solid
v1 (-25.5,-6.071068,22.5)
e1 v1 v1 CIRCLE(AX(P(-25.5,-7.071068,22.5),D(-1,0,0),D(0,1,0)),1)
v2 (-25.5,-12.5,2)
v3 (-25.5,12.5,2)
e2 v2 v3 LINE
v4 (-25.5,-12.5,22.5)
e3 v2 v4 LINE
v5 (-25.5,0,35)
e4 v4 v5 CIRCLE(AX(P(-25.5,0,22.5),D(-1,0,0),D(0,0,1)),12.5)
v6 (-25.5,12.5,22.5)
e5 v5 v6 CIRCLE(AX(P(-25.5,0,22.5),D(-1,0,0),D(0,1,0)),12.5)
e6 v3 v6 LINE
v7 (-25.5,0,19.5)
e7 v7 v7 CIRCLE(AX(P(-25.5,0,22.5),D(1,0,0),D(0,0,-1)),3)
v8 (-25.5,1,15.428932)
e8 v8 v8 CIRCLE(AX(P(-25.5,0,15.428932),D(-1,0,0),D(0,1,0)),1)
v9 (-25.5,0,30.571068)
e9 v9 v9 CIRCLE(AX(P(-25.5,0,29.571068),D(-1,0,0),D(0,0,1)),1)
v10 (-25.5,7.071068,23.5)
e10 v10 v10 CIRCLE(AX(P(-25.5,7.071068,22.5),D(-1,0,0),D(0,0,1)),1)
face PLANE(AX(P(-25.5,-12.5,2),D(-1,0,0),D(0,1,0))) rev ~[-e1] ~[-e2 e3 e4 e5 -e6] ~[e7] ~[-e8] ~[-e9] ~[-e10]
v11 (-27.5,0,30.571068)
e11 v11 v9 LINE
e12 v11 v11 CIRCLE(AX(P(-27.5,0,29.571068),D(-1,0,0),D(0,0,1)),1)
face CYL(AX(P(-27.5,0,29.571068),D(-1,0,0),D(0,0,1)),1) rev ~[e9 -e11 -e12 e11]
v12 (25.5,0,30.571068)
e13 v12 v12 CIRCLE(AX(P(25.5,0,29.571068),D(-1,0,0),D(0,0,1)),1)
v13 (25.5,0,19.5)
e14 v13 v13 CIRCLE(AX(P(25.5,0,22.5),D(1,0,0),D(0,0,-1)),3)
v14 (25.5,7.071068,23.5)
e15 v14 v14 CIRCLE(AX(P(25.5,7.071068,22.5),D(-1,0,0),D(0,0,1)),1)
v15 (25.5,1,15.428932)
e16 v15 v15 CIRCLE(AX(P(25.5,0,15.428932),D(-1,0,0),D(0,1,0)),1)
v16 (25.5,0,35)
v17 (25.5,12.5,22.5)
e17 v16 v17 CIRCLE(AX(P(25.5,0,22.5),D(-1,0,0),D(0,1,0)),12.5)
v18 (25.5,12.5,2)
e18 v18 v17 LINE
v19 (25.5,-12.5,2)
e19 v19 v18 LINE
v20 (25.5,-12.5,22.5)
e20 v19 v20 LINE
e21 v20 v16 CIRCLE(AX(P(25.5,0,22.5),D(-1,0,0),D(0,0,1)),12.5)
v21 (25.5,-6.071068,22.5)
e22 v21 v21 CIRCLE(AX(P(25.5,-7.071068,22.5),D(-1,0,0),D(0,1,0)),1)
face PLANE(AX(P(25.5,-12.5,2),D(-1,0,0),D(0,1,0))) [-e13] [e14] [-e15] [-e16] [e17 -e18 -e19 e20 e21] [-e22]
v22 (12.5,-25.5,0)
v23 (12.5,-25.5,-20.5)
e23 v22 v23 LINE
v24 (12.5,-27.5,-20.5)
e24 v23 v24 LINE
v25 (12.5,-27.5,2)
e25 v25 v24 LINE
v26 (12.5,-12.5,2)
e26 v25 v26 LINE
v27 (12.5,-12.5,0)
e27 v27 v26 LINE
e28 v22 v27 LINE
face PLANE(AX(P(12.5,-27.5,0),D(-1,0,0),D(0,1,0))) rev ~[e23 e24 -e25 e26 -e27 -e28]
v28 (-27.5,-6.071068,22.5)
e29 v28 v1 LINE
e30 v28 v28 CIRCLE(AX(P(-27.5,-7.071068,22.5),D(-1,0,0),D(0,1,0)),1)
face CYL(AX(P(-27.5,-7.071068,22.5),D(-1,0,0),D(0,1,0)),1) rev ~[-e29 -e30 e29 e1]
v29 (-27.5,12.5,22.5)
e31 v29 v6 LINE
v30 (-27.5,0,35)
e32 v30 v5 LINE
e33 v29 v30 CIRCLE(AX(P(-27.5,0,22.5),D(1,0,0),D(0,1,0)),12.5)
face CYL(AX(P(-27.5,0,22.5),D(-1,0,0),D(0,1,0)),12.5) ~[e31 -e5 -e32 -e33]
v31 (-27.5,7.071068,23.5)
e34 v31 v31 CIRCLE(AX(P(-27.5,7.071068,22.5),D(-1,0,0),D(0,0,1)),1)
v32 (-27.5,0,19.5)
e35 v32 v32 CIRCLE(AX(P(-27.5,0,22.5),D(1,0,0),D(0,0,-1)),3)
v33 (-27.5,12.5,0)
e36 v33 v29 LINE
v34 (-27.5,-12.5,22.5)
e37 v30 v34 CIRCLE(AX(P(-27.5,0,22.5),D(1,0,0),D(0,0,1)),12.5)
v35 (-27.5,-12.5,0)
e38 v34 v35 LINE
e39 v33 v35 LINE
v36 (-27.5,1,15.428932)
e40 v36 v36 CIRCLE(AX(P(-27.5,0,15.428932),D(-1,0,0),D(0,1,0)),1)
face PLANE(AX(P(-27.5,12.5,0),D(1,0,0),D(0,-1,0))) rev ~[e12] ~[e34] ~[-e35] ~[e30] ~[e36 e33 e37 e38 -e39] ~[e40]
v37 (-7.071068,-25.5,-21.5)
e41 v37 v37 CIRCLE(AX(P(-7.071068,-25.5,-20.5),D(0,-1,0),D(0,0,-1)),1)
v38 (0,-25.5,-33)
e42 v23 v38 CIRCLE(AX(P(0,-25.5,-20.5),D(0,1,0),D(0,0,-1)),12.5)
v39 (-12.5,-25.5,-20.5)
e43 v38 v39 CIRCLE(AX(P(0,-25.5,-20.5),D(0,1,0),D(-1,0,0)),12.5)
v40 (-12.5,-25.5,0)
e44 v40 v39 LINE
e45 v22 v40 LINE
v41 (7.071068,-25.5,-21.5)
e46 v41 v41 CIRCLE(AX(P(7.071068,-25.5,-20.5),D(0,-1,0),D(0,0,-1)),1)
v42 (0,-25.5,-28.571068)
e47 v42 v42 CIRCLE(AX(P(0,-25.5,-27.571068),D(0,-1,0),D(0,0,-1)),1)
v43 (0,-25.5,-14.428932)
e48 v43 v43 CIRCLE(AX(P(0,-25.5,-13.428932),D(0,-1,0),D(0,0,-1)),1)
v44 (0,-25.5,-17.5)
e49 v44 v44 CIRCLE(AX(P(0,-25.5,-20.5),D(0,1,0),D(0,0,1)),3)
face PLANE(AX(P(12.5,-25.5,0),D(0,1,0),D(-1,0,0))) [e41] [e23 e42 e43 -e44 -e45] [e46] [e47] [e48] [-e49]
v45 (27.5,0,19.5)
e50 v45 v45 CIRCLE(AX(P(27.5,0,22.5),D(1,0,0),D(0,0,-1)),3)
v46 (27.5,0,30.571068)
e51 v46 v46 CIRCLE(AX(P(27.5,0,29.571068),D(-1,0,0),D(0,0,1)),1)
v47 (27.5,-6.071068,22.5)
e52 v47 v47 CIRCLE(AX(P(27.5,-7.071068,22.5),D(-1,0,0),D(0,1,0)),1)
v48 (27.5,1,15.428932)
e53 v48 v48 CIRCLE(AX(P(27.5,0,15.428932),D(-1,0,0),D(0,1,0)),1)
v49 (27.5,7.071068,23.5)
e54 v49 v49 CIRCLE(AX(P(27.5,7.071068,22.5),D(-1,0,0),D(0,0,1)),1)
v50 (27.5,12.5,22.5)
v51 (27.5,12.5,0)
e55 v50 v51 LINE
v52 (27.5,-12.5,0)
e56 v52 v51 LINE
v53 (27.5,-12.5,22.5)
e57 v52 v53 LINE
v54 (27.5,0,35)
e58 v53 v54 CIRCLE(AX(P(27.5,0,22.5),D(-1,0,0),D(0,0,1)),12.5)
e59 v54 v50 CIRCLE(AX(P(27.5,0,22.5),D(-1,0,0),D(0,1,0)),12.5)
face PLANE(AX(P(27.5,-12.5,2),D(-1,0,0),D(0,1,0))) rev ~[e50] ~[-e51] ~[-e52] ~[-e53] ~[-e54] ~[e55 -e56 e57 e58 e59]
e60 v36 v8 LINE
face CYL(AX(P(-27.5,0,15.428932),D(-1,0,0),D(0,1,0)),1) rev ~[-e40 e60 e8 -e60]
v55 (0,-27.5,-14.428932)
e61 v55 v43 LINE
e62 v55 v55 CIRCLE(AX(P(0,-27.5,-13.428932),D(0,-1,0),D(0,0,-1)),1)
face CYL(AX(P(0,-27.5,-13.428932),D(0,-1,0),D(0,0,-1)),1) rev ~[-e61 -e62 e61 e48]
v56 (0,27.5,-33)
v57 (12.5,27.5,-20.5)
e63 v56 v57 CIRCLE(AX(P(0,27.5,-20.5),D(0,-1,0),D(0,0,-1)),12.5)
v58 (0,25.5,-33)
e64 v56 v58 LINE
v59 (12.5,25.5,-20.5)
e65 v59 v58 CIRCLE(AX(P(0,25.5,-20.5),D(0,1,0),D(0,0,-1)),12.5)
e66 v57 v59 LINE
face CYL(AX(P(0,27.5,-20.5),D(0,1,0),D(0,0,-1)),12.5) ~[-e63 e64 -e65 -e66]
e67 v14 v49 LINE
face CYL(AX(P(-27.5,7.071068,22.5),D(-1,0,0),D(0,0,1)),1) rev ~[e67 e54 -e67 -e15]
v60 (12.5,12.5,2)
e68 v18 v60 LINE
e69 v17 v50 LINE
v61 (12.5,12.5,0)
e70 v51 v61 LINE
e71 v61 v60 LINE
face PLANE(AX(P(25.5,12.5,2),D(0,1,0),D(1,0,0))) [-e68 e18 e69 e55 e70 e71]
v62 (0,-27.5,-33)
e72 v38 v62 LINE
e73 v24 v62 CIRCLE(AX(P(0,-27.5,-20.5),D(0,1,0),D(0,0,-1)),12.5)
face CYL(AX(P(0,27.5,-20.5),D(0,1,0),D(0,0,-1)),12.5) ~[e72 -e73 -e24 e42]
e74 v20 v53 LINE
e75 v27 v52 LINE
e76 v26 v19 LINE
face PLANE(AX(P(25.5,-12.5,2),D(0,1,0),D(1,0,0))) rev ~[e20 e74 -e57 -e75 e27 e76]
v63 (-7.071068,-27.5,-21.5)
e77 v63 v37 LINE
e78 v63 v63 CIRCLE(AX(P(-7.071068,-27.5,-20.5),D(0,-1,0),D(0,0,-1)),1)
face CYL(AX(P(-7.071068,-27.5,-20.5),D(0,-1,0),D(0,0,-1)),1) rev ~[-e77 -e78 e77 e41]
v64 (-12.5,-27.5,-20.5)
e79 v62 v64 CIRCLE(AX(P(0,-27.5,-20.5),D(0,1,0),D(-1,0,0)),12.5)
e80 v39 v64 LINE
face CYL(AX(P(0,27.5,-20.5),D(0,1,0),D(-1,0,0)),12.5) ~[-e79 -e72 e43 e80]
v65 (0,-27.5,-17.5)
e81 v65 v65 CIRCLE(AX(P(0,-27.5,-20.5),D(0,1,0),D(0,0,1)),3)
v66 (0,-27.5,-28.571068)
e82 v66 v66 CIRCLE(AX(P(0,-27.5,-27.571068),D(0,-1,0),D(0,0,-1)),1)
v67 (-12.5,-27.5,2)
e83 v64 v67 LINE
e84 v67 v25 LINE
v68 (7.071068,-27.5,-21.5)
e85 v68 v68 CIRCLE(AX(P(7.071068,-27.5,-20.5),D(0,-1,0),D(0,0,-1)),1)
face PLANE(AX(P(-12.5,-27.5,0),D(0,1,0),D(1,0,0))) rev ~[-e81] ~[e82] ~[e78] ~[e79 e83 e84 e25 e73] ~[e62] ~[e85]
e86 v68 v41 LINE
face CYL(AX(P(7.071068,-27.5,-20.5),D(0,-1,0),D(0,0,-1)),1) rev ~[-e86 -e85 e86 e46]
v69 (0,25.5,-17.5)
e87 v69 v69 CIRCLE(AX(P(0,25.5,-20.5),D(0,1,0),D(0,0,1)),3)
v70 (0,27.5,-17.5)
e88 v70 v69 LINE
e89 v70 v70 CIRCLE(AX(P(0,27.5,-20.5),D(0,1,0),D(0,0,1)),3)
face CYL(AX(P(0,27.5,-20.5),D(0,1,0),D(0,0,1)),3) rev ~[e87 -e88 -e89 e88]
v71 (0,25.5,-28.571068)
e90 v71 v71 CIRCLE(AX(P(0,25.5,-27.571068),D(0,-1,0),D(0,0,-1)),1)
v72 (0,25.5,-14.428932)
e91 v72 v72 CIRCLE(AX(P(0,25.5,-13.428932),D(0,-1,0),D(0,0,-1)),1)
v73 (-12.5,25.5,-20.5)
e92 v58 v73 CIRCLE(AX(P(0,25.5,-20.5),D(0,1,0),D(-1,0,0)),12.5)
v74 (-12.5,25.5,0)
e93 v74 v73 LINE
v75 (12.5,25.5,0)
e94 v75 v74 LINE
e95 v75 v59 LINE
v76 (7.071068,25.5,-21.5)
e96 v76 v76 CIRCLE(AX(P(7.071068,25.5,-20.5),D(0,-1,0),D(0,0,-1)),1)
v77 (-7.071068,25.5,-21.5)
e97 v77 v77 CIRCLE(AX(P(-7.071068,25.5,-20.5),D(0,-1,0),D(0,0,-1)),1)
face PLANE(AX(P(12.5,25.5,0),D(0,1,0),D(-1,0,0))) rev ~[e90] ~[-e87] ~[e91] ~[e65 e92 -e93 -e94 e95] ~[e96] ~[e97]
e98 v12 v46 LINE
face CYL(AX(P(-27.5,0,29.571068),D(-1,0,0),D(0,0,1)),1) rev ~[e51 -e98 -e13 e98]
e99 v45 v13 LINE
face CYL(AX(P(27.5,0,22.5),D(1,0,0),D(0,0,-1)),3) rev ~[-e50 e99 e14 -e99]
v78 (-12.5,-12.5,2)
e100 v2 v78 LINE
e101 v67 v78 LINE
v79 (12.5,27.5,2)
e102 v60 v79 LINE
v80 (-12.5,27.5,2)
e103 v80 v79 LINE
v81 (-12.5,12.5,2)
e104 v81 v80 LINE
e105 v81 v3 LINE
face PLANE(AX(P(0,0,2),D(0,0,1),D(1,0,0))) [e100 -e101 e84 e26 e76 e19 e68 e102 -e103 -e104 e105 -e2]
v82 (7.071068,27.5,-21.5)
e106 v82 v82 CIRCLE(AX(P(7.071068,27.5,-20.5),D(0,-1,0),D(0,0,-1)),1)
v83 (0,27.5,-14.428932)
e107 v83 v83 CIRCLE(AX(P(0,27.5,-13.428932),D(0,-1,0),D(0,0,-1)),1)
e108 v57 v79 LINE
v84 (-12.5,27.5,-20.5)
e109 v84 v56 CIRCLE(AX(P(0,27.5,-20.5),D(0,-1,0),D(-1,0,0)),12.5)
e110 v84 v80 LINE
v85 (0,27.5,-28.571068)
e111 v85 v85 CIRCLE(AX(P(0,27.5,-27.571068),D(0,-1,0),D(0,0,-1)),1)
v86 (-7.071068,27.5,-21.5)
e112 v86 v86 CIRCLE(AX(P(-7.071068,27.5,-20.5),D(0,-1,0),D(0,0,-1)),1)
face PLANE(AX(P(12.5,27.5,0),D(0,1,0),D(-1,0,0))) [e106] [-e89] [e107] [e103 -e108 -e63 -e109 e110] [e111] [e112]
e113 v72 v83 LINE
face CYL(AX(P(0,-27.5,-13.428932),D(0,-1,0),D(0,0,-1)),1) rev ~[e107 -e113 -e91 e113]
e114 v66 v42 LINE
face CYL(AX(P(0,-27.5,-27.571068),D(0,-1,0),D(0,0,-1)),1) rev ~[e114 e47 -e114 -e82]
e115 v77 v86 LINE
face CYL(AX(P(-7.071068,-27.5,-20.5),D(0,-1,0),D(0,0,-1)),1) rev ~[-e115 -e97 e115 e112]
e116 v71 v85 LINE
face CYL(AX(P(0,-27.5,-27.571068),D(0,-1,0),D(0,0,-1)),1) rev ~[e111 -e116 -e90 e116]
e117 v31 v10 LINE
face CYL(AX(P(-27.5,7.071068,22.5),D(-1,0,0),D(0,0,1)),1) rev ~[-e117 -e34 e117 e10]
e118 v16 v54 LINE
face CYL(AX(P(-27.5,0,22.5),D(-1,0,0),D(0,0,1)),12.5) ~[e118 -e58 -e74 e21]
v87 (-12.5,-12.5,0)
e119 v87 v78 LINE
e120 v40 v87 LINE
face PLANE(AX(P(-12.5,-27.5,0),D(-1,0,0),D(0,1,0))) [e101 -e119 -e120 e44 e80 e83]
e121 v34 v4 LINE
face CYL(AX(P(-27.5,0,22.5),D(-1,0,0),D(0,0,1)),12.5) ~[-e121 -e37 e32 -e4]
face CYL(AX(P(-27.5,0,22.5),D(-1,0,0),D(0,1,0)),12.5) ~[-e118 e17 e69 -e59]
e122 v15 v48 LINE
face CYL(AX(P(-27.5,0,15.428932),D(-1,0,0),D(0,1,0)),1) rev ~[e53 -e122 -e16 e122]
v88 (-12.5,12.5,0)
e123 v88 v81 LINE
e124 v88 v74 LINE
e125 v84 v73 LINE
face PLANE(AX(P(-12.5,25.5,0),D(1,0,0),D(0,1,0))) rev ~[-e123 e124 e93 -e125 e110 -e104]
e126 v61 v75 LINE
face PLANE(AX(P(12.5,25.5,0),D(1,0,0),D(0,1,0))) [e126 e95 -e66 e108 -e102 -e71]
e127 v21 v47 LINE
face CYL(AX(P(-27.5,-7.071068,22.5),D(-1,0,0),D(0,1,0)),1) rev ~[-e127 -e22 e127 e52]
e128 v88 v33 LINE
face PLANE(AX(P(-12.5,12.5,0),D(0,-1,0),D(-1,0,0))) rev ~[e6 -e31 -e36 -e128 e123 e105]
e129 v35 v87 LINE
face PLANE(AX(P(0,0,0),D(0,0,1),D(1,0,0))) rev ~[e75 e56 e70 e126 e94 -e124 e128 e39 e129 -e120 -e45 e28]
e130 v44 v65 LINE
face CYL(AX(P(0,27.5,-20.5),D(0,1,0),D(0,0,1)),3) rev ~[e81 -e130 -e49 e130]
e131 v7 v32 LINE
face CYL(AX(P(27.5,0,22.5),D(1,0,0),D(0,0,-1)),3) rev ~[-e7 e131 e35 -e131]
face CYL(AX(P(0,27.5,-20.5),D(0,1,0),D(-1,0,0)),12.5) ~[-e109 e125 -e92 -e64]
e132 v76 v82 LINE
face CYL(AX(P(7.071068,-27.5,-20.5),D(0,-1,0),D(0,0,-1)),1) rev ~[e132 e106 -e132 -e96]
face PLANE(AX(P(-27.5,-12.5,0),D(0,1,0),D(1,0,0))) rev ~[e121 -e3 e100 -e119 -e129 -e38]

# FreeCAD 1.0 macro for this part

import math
import FreeCAD as App
import Part
import Sketcher
Q = App.Units.Quantity

doc = App.newDocument("Part")
params = doc.addObject("Spreadsheet::Sheet", "Params")
for row, (alias, value) in enumerate([
    ("sketch1_width", "15 mm"),
    ("sketch1_width2", "25 mm"),
    ("pad1_length", "2 mm"),
    ("sketch2_width", "2 mm"),
    ("sketch2_height", "25 mm"),
    ("pad2_length", "33 mm"),
    ("sketch3_width", "25 mm"),
    ("sketch3_height", "2 mm"),
    ("pad3_length", "33 mm"),
    ("sketch4_diameter", "2 mm"),
    ("sketch4_radius", "12.5 mm"),
    ("sketch5_diameter", "2 mm"),
    ("sketch5_radius", "12.5 mm"),
    ("sketch6_diameter", "6 mm"),
    ("sketch7_diameter", "6 mm"),
    ("sketch8_diameter", "25 mm"),
    ("sketch8_diameter2", "6 mm"),
    ("pad4_length", "2 mm"),
    ("sketch9_diameter", "25 mm"),
    ("sketch9_diameter2", "6 mm"),
    ("pad5_length", "2 mm"),
    ("sketch10_diameter", "2 mm"),
    ("sketch11_diameter", "25 mm"),
    ("sketch11_diameter2", "6 mm"),
    ("pad6_length", "2 mm"),
    ("sketch12_diameter", "25 mm"),
    ("sketch12_diameter2", "6 mm"),
    ("pad7_length", "2 mm"),
    ("sketch13_diameter", "2 mm"),
], start=1):
    params.set(f"A{row}", alias)
    params.set(f"B{row}", "=" + value)
    params.setAlias(f"B{row}", alias)

body = doc.addObject("PartDesign::Body", "Body")

# Sketch on XY plane
sketch1 = doc.addObject("Sketcher::SketchObject", "Sketch")
body.addObject(sketch1)
sketch1.AttachmentSupport = (doc.XY_Plane, [""])
sketch1.MapMode = "FlatFace"
sketch1.addGeometry([
    Part.LineSegment(App.Vector(-28, 12, 0), App.Vector(-28, -12, 0)),  # 0
    Part.LineSegment(App.Vector(-28, -12, 0), App.Vector(-12, -12, 0)),  # 1
    Part.LineSegment(App.Vector(-12, -12, 0), App.Vector(-12, -28, 0)),  # 2
    Part.LineSegment(App.Vector(-12, -28, 0), App.Vector(12, -28, 0)),  # 3
    Part.LineSegment(App.Vector(12, -28, 0), App.Vector(12, -12, 0)),  # 4
    Part.LineSegment(App.Vector(12, -12, 0), App.Vector(28, -12, 0)),  # 5
    Part.LineSegment(App.Vector(28, -12, 0), App.Vector(28, 12, 0)),  # 6
    Part.LineSegment(App.Vector(28, 12, 0), App.Vector(12, 12, 0)),  # 7
    Part.LineSegment(App.Vector(12, 12, 0), App.Vector(12, 28, 0)),  # 8
    Part.LineSegment(App.Vector(12, 28, 0), App.Vector(-12, 28, 0)),  # 9
    Part.LineSegment(App.Vector(-12, 28, 0), App.Vector(-12, 12, 0)),  # 10
    Part.LineSegment(App.Vector(-12, 12, 0), App.Vector(-28, 12, 0)),  # 11
], False)
sketch1.addConstraint([
    Sketcher.Constraint("Coincident", 0, 2, 1, 1),
    Sketcher.Constraint("Coincident", 1, 2, 2, 1),
    Sketcher.Constraint("Coincident", 2, 2, 3, 1),
    Sketcher.Constraint("Coincident", 3, 2, 4, 1),
    Sketcher.Constraint("Coincident", 4, 2, 5, 1),
    Sketcher.Constraint("Coincident", 5, 2, 6, 1),
    Sketcher.Constraint("Coincident", 6, 2, 7, 1),
    Sketcher.Constraint("Coincident", 7, 2, 8, 1),
    Sketcher.Constraint("Coincident", 8, 2, 9, 1),
    Sketcher.Constraint("Coincident", 9, 2, 10, 1),
    Sketcher.Constraint("Coincident", 10, 2, 11, 1),
    Sketcher.Constraint("Coincident", 11, 2, 0, 1),
    Sketcher.Constraint("Vertical", 0),
    Sketcher.Constraint("Horizontal", 1),
    Sketcher.Constraint("Vertical", 2),
    Sketcher.Constraint("Horizontal", 3),
    Sketcher.Constraint("Vertical", 4),
    Sketcher.Constraint("Horizontal", 5),
    Sketcher.Constraint("Vertical", 6),
    Sketcher.Constraint("Horizontal", 7),
    Sketcher.Constraint("Vertical", 8),
    Sketcher.Constraint("Horizontal", 9),
    Sketcher.Constraint("Vertical", 10),
    Sketcher.Constraint("Horizontal", 11),
    Sketcher.Constraint("Symmetric", 0, 2, 6, 2, -1, 1),
    Sketcher.Constraint("Symmetric", 2, 2, 8, 2, -1, 1),
    Sketcher.Constraint("Symmetric", 4, 2, 10, 2, -1, 1),
    Sketcher.Constraint("Symmetric", 1, 2, 4, 2, -2),
    Sketcher.Constraint("Equal", 9, 0),
    Sketcher.Constraint("Equal", 11, 2),
    Sketcher.Constraint("DistanceX", 1, 1, 1, 2, Q("15 mm")),
    Sketcher.Constraint("DistanceX", 3, 1, 3, 2, Q("25 mm")),
])
sketch1.setExpression("Constraints[30]", "Params.sketch1_width")
sketch1.setExpression("Constraints[31]", "Params.sketch1_width2")
pad1 = doc.addObject("PartDesign::Pad", "Pad")
body.addObject(pad1)
pad1.Profile = sketch1
pad1.setExpression("Length", "Params.pad1_length")

# Sketch on XY plane
sketch2 = doc.addObject("Sketcher::SketchObject", "Sketch001")
body.addObject(sketch2)
sketch2.AttachmentSupport = (doc.XY_Plane, [""])
sketch2.MapMode = "FlatFace"
sketch2.AttachmentOffset = App.Placement(App.Vector(0, 0, 2), App.Rotation())
sketch2.addGeometry([
    Part.LineSegment(App.Vector(25.5, 12.5, 0), App.Vector(25.5, -12.5, 0)),  # 0
    Part.LineSegment(App.Vector(25.5, -12.5, 0), App.Vector(27.5, -12.5, 0)),  # 1
    Part.LineSegment(App.Vector(27.5, -12.5, 0), App.Vector(27.5, 12.5, 0)),  # 2
    Part.LineSegment(App.Vector(27.5, 12.5, 0), App.Vector(25.5, 12.5, 0)),  # 3
    Part.LineSegment(App.Vector(-27.5, 12.5, 0), App.Vector(-27.5, -12.5, 0)),  # 4
    Part.LineSegment(App.Vector(-27.5, -12.5, 0), App.Vector(-25.5, -12.5, 0)),  # 5
    Part.LineSegment(App.Vector(-25.5, -12.5, 0), App.Vector(-25.5, 12.5, 0)),  # 6
    Part.LineSegment(App.Vector(-25.5, 12.5, 0), App.Vector(-27.5, 12.5, 0)),  # 7
], False)
sketch2.addConstraint([
    Sketcher.Constraint("Coincident", 0, 2, 1, 1),
    Sketcher.Constraint("Coincident", 1, 2, 2, 1),
    Sketcher.Constraint("Coincident", 2, 2, 3, 1),
    Sketcher.Constraint("Coincident", 3, 2, 0, 1),
    Sketcher.Constraint("Coincident", 4, 2, 5, 1),
    Sketcher.Constraint("Coincident", 5, 2, 6, 1),
    Sketcher.Constraint("Coincident", 6, 2, 7, 1),
    Sketcher.Constraint("Coincident", 7, 2, 4, 1),
    Sketcher.Constraint("Vertical", 0),
    Sketcher.Constraint("Horizontal", 1),
    Sketcher.Constraint("Vertical", 2),
    Sketcher.Constraint("Horizontal", 3),
    Sketcher.Constraint("Vertical", 4),
    Sketcher.Constraint("Horizontal", 5),
    Sketcher.Constraint("Vertical", 6),
    Sketcher.Constraint("Horizontal", 7),
    Sketcher.Constraint("Symmetric", 2, 2, 4, 2, -1, 1),
    Sketcher.Constraint("Symmetric", 0, 2, 6, 2, -1, 1),
    Sketcher.Constraint("Horizontal", 1, 2, 4, 2),
    Sketcher.Constraint("DistanceX", 1, 1, 1, 2, Q("2 mm")),
    Sketcher.Constraint("DistanceY", 0, 2, 0, 1, Q("25 mm")),
    Sketcher.Constraint("DistanceX", 4, 2, 0, 2, Q("53 mm")),
])
sketch2.setExpression("Constraints[19]", "Params.sketch2_width")
sketch2.setExpression("Constraints[20]", "Params.sketch2_height")
pad2 = doc.addObject("PartDesign::Pad", "Pad001")
body.addObject(pad2)
pad2.Profile = sketch2
pad2.setExpression("Length", "Params.pad2_length")

# Sketch on XY plane
sketch3 = doc.addObject("Sketcher::SketchObject", "Sketch002")
body.addObject(sketch3)
sketch3.AttachmentSupport = (doc.XY_Plane, [""])
sketch3.MapMode = "FlatFace"
sketch3.addGeometry([
    Part.LineSegment(App.Vector(12.5, 27.5, 0), App.Vector(12.5, 25.5, 0)),  # 0
    Part.LineSegment(App.Vector(12.5, 25.5, 0), App.Vector(-12.5, 25.5, 0)),  # 1
    Part.LineSegment(App.Vector(-12.5, 25.5, 0), App.Vector(-12.5, 27.5, 0)),  # 2
    Part.LineSegment(App.Vector(-12.5, 27.5, 0), App.Vector(12.5, 27.5, 0)),  # 3
    Part.LineSegment(App.Vector(12.5, -25.5, 0), App.Vector(12.5, -27.5, 0)),  # 4
    Part.LineSegment(App.Vector(12.5, -27.5, 0), App.Vector(-12.5, -27.5, 0)),  # 5
    Part.LineSegment(App.Vector(-12.5, -27.5, 0), App.Vector(-12.5, -25.5, 0)),  # 6
    Part.LineSegment(App.Vector(-12.5, -25.5, 0), App.Vector(12.5, -25.5, 0)),  # 7
], False)
sketch3.addConstraint([
    Sketcher.Constraint("Coincident", 0, 2, 1, 1),
    Sketcher.Constraint("Coincident", 1, 2, 2, 1),
    Sketcher.Constraint("Coincident", 2, 2, 3, 1),
    Sketcher.Constraint("Coincident", 3, 2, 0, 1),
    Sketcher.Constraint("Coincident", 4, 2, 5, 1),
    Sketcher.Constraint("Coincident", 5, 2, 6, 1),
    Sketcher.Constraint("Coincident", 6, 2, 7, 1),
    Sketcher.Constraint("Coincident", 7, 2, 4, 1),
    Sketcher.Constraint("Vertical", 0),
    Sketcher.Constraint("Horizontal", 1),
    Sketcher.Constraint("Vertical", 2),
    Sketcher.Constraint("Horizontal", 3),
    Sketcher.Constraint("Vertical", 4),
    Sketcher.Constraint("Horizontal", 5),
    Sketcher.Constraint("Vertical", 6),
    Sketcher.Constraint("Horizontal", 7),
    Sketcher.Constraint("Symmetric", 2, 2, 4, 2, -1, 1),
    Sketcher.Constraint("Symmetric", 0, 2, 6, 2, -1, 1),
    Sketcher.Constraint("Vertical", 3, 2, 4, 2),
    Sketcher.Constraint("DistanceX", 1, 2, 1, 1, Q("25 mm")),
    Sketcher.Constraint("DistanceY", 0, 2, 0, 1, Q("2 mm")),
    Sketcher.Constraint("DistanceY", 4, 2, 0, 2, Q("53 mm")),
])
sketch3.setExpression("Constraints[19]", "Params.sketch3_width")
sketch3.setExpression("Constraints[20]", "Params.sketch3_height")
pad3 = doc.addObject("PartDesign::Pad", "Pad002")
body.addObject(pad3)
pad3.Profile = sketch3
pad3.setExpression("Length", "Params.pad3_length")
pad3.Reversed = True

# Sketch on YZ plane
sketch4 = doc.addObject("Sketcher::SketchObject", "Sketch003")
body.addObject(sketch4)
sketch4.AttachmentSupport = (doc.YZ_Plane, [""])
sketch4.MapMode = "FlatFace"
sketch4.AttachmentOffset = App.Placement(App.Vector(0, 0, -27.5), App.Rotation())
sketch4.addGeometry([
    Part.LineSegment(App.Vector(12.5, 35, 0), App.Vector(12.5, 22.5, 0)),  # 0
    Part.ArcOfCircle(Part.Circle(App.Vector(0, 22.5, 0), App.Vector(0, 0, 1), 12.5), math.radians(0), math.radians(90)),  # 1
    Part.LineSegment(App.Vector(0, 35, 0), App.Vector(12.5, 35, 0)),  # 2
    Part.LineSegment(App.Vector(-12.5, 35, 0), App.Vector(0, 35, 0)),  # 3
    Part.ArcOfCircle(Part.Circle(App.Vector(0, 22.5, 0), App.Vector(0, 0, 1), 12.5), math.radians(90), math.radians(180)),  # 4
    Part.LineSegment(App.Vector(-12.5, 22.5, 0), App.Vector(-12.5, 35, 0)),  # 5
    Part.Circle(App.Vector(0, 29.7, 0), App.Vector(0, 0, 1), 1),  # 6
    Part.Circle(App.Vector(7, 22.5, 0), App.Vector(0, 0, 1), 1),  # 7
    Part.Circle(App.Vector(0, 15.3, 0), App.Vector(0, 0, 1), 1),  # 8
    Part.Circle(App.Vector(-7, 22.5, 0), App.Vector(0, 0, 1), 1),  # 9
], False)
sketch4.addConstraint([
    Sketcher.Constraint("Tangent", 0, 2, 1, 1),
    Sketcher.Constraint("Tangent", 1, 2, 2, 1),
    Sketcher.Constraint("Coincident", 2, 2, 0, 1),
    Sketcher.Constraint("Tangent", 3, 2, 4, 1),
    Sketcher.Constraint("Tangent", 4, 2, 5, 1),
    Sketcher.Constraint("Coincident", 5, 2, 3, 1),
    Sketcher.Constraint("Vertical", 0),
    Sketcher.Constraint("Horizontal", 2),
    Sketcher.Constraint("Horizontal", 3),
    Sketcher.Constraint("Vertical", 5),
    Sketcher.Constraint("Coincident", 4, 3, 1, 3),
    Sketcher.Constraint("Equal", 1, 4),
    Sketcher.Constraint("Equal", 6, 7),
    Sketcher.Constraint("Equal", 7, 8),
    Sketcher.Constraint("Equal", 8, 9),
    Sketcher.Constraint("Symmetric", 7, 3, 9, 3, -2),
    Sketcher.Constraint("PointOnObject", 1, 3, -2),
    Sketcher.Constraint("PointOnObject", 6, 3, -2),
    Sketcher.Constraint("PointOnObject", 8, 3, -2),
    Sketcher.Constraint("Horizontal", 4, 3, 7, 3),
    Sketcher.Constraint("Diameter", 6, Q("2 mm")),
    Sketcher.Constraint("Radius", 1, Q("12.5 mm")),
    Sketcher.Constraint("DistanceY", -1, 1, 1, 2, Q("35 mm")),
    Sketcher.Constraint("DistanceY", 8, 3, 6, 3, Q("14.365029 mm")),
    Sketcher.Constraint("DistanceY", -1, 1, 6, 3, Q("29.682515 mm")),
    Sketcher.Constraint("DistanceX", -1, 1, 7, 3, Q("6.957836 mm")),
])
sketch4.setExpression("Constraints[20]", "Params.sketch4_diameter")
sketch4.setExpression("Constraints[21]", "Params.sketch4_radius")
pocket1 = doc.addObject("PartDesign::Pocket", "Pocket")
body.addObject(pocket1)
pocket1.Profile = sketch4
pocket1.Type = "ThroughAll"
pocket1.Reversed = True

# Sketch on XZ plane
sketch5 = doc.addObject("Sketcher::SketchObject", "Sketch004")
body.addObject(sketch5)
sketch5.AttachmentSupport = (doc.XZ_Plane, [""])
sketch5.MapMode = "FlatFace"
sketch5.AttachmentOffset = App.Placement(App.Vector(0, 0, -27.5), App.Rotation())
sketch5.addGeometry([
    Part.LineSegment(App.Vector(-12.5, -33, 0), App.Vector(-12.5, -20.5, 0)),  # 0
    Part.ArcOfCircle(Part.Circle(App.Vector(0, -20.5, 0), App.Vector(0, 0, 1), 12.5), math.radians(180), math.radians(270)),  # 1
    Part.LineSegment(App.Vector(0, -33, 0), App.Vector(-12.5, -33, 0)),  # 2
    Part.ArcOfCircle(Part.Circle(App.Vector(0, -20.5, 0), App.Vector(0, 0, 1), 12.5), math.radians(-90), math.radians(0)),  # 3
    Part.LineSegment(App.Vector(12.5, -20.5, 0), App.Vector(12.5, -33, 0)),  # 4
    Part.LineSegment(App.Vector(12.5, -33, 0), App.Vector(0, -33, 0)),  # 5
    Part.Circle(App.Vector(6.5, -20.5, 0), App.Vector(0, 0, 1), 1),  # 6
    Part.Circle(App.Vector(0, -28.1, 0), App.Vector(0, 0, 1), 1),  # 7
    Part.Circle(App.Vector(-6.5, -20.5, 0), App.Vector(0, 0, 1), 1),  # 8
    Part.Circle(App.Vector(0, -12.9, 0), App.Vector(0, 0, 1), 1),  # 9
], False)
sketch5.addConstraint([
    Sketcher.Constraint("Tangent", 0, 2, 1, 1),
    Sketcher.Constraint("Tangent", 1, 2, 2, 1),
    Sketcher.Constraint("Coincident", 2, 2, 0, 1),
    Sketcher.Constraint("Tangent", 3, 2, 4, 1),
    Sketcher.Constraint("Coincident", 4, 2, 5, 1),
    Sketcher.Constraint("Tangent", 5, 2, 3, 1),
    Sketcher.Constraint("Vertical", 0),
    Sketcher.Constraint("Horizontal", 2),
    Sketcher.Constraint("Vertical", 4),
    Sketcher.Constraint("Horizontal", 5),
    Sketcher.Constraint("Coincident", 3, 3, 1, 3),
    Sketcher.Constraint("Equal", 1, 3),
    Sketcher.Constraint("Equal", 6, 7),
    Sketcher.Constraint("Equal", 7, 8),
    Sketcher.Constraint("Equal", 8, 9),
    Sketcher.Constraint("Symmetric", 6, 3, 8, 3, -2),
    Sketcher.Constraint("PointOnObject", 1, 3, -2),
    Sketcher.Constraint("PointOnObject", 7, 3, -2),
    Sketcher.Constraint("PointOnObject", 9, 3, -2),
    Sketcher.Constraint("Horizontal", 3, 3, 6, 3),
    Sketcher.Constraint("Diameter", 6, Q("2 mm")),
    Sketcher.Constraint("Radius", 1, Q("12.5 mm")),
    Sketcher.Constraint("DistanceY", 1, 2, -1, 1, Q("33 mm")),
    Sketcher.Constraint("DistanceX", -1, 1, 6, 3, Q("6.473249 mm")),
    Sketcher.Constraint("DistanceY", 7, 3, -1, 1, Q("28.122142 mm")),
    Sketcher.Constraint("DistanceY", 9, 3, -1, 1, Q("12.877858 mm")),
])
sketch5.setExpression("Constraints[20]", "Params.sketch5_diameter")
sketch5.setExpression("Constraints[21]", "Params.sketch5_radius")
pocket2 = doc.addObject("PartDesign::Pocket", "Pocket001")
body.addObject(pocket2)
pocket2.Profile = sketch5
pocket2.Type = "ThroughAll"
pocket2.Reversed = True

# Sketch on XZ plane
sketch6 = doc.addObject("Sketcher::SketchObject", "Sketch005")
body.addObject(sketch6)
sketch6.AttachmentSupport = (doc.XZ_Plane, [""])
sketch6.MapMode = "FlatFace"
sketch6.AttachmentOffset = App.Placement(App.Vector(0, 0, -27.5), App.Rotation())
sketch6.addGeometry(Part.Circle(App.Vector(0, -20.5, 0), App.Vector(0, 0, 1), 3), False)
sketch6.addConstraint([
    Sketcher.Constraint("PointOnObject", 0, 3, -2),
    Sketcher.Constraint("Diameter", 0, Q("6 mm")),
    Sketcher.Constraint("DistanceY", 0, 3, -1, 1, Q("20.5 mm")),
])
sketch6.setExpression("Constraints[1]", "Params.sketch6_diameter")
pocket3 = doc.addObject("PartDesign::Pocket", "Pocket002")
body.addObject(pocket3)
pocket3.Profile = sketch6
pocket3.Type = "ThroughAll"
pocket3.Reversed = True

# Sketch on YZ plane
sketch7 = doc.addObject("Sketcher::SketchObject", "Sketch006")
body.addObject(sketch7)
sketch7.AttachmentSupport = (doc.YZ_Plane, [""])
sketch7.MapMode = "FlatFace"
sketch7.AttachmentOffset = App.Placement(App.Vector(0, 0, 27.5), App.Rotation())
sketch7.addGeometry(Part.Circle(App.Vector(0, 22.5, 0), App.Vector(0, 0, 1), 3), False)
sketch7.addConstraint([
    Sketcher.Constraint("PointOnObject", 0, 3, -2),
    Sketcher.Constraint("Diameter", 0, Q("6 mm")),
    Sketcher.Constraint("DistanceY", -1, 1, 0, 3, Q("22.5 mm")),
])
sketch7.setExpression("Constraints[1]", "Params.sketch7_diameter")
pocket4 = doc.addObject("PartDesign::Pocket", "Pocket003")
body.addObject(pocket4)
pocket4.Profile = sketch7
pocket4.Type = "ThroughAll"

# Sketch on YZ plane
sketch8 = doc.addObject("Sketcher::SketchObject", "Sketch007")
body.addObject(sketch8)
sketch8.AttachmentSupport = (doc.YZ_Plane, [""])
sketch8.MapMode = "FlatFace"
sketch8.AttachmentOffset = App.Placement(App.Vector(0, 0, 27.5), App.Rotation())
sketch8.addGeometry([
    Part.Circle(App.Vector(0, 22.5, 0), App.Vector(0, 0, 1), 12.5),
    Part.Circle(App.Vector(0, 22.5, 0), App.Vector(0, 0, 1), 3),
], False)
sketch8.addConstraint([
    Sketcher.Constraint("Coincident", 1, 3, 0, 3),
    Sketcher.Constraint("PointOnObject", 0, 3, -2),
    Sketcher.Constraint("Diameter", 0, Q("25 mm")),
    Sketcher.Constraint("Diameter", 1, Q("6 mm")),
    Sketcher.Constraint("DistanceY", -1, 1, 0, 3, Q("22.5 mm")),
])
sketch8.setExpression("Constraints[2]", "Params.sketch8_diameter")
sketch8.setExpression("Constraints[3]", "Params.sketch8_diameter2")
pad4 = doc.addObject("PartDesign::Pad", "Pad003")
body.addObject(pad4)
pad4.Profile = sketch8
pad4.setExpression("Length", "Params.pad4_length")
pad4.Reversed = True

# Sketch on YZ plane
sketch9 = doc.addObject("Sketcher::SketchObject", "Sketch008")
body.addObject(sketch9)
sketch9.AttachmentSupport = (doc.YZ_Plane, [""])
sketch9.MapMode = "FlatFace"
sketch9.AttachmentOffset = App.Placement(App.Vector(0, 0, -27.5), App.Rotation())
sketch9.addGeometry([
    Part.Circle(App.Vector(0, 22.5, 0), App.Vector(0, 0, 1), 12.5),
    Part.Circle(App.Vector(0, 22.5, 0), App.Vector(0, 0, 1), 3),
], False)
sketch9.addConstraint([
    Sketcher.Constraint("Coincident", 1, 3, 0, 3),
    Sketcher.Constraint("PointOnObject", 0, 3, -2),
    Sketcher.Constraint("Diameter", 0, Q("25 mm")),
    Sketcher.Constraint("Diameter", 1, Q("6 mm")),
    Sketcher.Constraint("DistanceY", -1, 1, 0, 3, Q("22.5 mm")),
])
sketch9.setExpression("Constraints[2]", "Params.sketch9_diameter")
sketch9.setExpression("Constraints[3]", "Params.sketch9_diameter2")
pad5 = doc.addObject("PartDesign::Pad", "Pad004")
body.addObject(pad5)
pad5.Profile = sketch9
pad5.setExpression("Length", "Params.pad5_length")

# Sketch on YZ plane
sketch10 = doc.addObject("Sketcher::SketchObject", "Sketch009")
body.addObject(sketch10)
sketch10.AttachmentSupport = (doc.YZ_Plane, [""])
sketch10.MapMode = "FlatFace"
sketch10.AttachmentOffset = App.Placement(App.Vector(0, 0, -27.5), App.Rotation())
sketch10.addGeometry([
    Part.Circle(App.Vector(7.1, 22.5, 0), App.Vector(0, 0, 1), 1),
    Part.Circle(App.Vector(0, 29.6, 0), App.Vector(0, 0, 1), 1),
    Part.Circle(App.Vector(-7.1, 22.5, 0), App.Vector(0, 0, 1), 1),
    Part.Circle(App.Vector(0, 15.4, 0), App.Vector(0, 0, 1), 1),
], False)
sketch10.addConstraint([
    Sketcher.Constraint("Equal", 0, 1),
    Sketcher.Constraint("Equal", 1, 2),
    Sketcher.Constraint("Equal", 2, 3),
    Sketcher.Constraint("Symmetric", 0, 3, 2, 3, -2),
    Sketcher.Constraint("PointOnObject", 1, 3, -2),
    Sketcher.Constraint("PointOnObject", 3, 3, -2),
    Sketcher.Constraint("Diameter", 0, Q("2 mm")),
    Sketcher.Constraint("DistanceY", -1, 1, 0, 3, Q("22.5 mm")),
    Sketcher.Constraint("DistanceX", -1, 1, 0, 3, Q("7.071068 mm")),
    Sketcher.Constraint("DistanceY", -1, 1, 1, 3, Q("29.571068 mm")),
    Sketcher.Constraint("DistanceY", -1, 1, 3, 3, Q("15.428932 mm")),
])
sketch10.setExpression("Constraints[6]", "Params.sketch10_diameter")
pocket5 = doc.addObject("PartDesign::Pocket", "Pocket004")
body.addObject(pocket5)
pocket5.Profile = sketch10
pocket5.Type = "ThroughAll"
pocket5.Reversed = True

# Sketch on XZ plane
sketch11 = doc.addObject("Sketcher::SketchObject", "Sketch010")
body.addObject(sketch11)
sketch11.AttachmentSupport = (doc.XZ_Plane, [""])
sketch11.MapMode = "FlatFace"
sketch11.AttachmentOffset = App.Placement(App.Vector(0, 0, -27.5), App.Rotation())
sketch11.addGeometry([
    Part.Circle(App.Vector(0, -20.5, 0), App.Vector(0, 0, 1), 12.5),
    Part.Circle(App.Vector(0, -20.5, 0), App.Vector(0, 0, 1), 3),
], False)
sketch11.addConstraint([
    Sketcher.Constraint("Coincident", 1, 3, 0, 3),
    Sketcher.Constraint("PointOnObject", 0, 3, -2),
    Sketcher.Constraint("Diameter", 0, Q("25 mm")),
    Sketcher.Constraint("Diameter", 1, Q("6 mm")),
    Sketcher.Constraint("DistanceY", 0, 3, -1, 1, Q("20.5 mm")),
])
sketch11.setExpression("Constraints[2]", "Params.sketch11_diameter")
sketch11.setExpression("Constraints[3]", "Params.sketch11_diameter2")
pad6 = doc.addObject("PartDesign::Pad", "Pad005")
body.addObject(pad6)
pad6.Profile = sketch11
pad6.setExpression("Length", "Params.pad6_length")

# Sketch on XZ plane
sketch12 = doc.addObject("Sketcher::SketchObject", "Sketch011")
body.addObject(sketch12)
sketch12.AttachmentSupport = (doc.XZ_Plane, [""])
sketch12.MapMode = "FlatFace"
sketch12.AttachmentOffset = App.Placement(App.Vector(0, 0, 25.5), App.Rotation())
sketch12.addGeometry([
    Part.Circle(App.Vector(0, -20.5, 0), App.Vector(0, 0, 1), 12.5),
    Part.Circle(App.Vector(0, -20.5, 0), App.Vector(0, 0, 1), 3),
], False)
sketch12.addConstraint([
    Sketcher.Constraint("Coincident", 1, 3, 0, 3),
    Sketcher.Constraint("PointOnObject", 0, 3, -2),
    Sketcher.Constraint("Diameter", 0, Q("25 mm")),
    Sketcher.Constraint("Diameter", 1, Q("6 mm")),
    Sketcher.Constraint("DistanceY", 0, 3, -1, 1, Q("20.5 mm")),
])
sketch12.setExpression("Constraints[2]", "Params.sketch12_diameter")
sketch12.setExpression("Constraints[3]", "Params.sketch12_diameter2")
pad7 = doc.addObject("PartDesign::Pad", "Pad006")
body.addObject(pad7)
pad7.Profile = sketch12
pad7.setExpression("Length", "Params.pad7_length")

# Sketch on XZ plane
sketch13 = doc.addObject("Sketcher::SketchObject", "Sketch012")
body.addObject(sketch13)
sketch13.AttachmentSupport = (doc.XZ_Plane, [""])
sketch13.MapMode = "FlatFace"
sketch13.AttachmentOffset = App.Placement(App.Vector(0, 0, 27.5), App.Rotation())
sketch13.addGeometry([
    Part.Circle(App.Vector(0, -13.4, 0), App.Vector(0, 0, 1), 1),
    Part.Circle(App.Vector(7.1, -20.5, 0), App.Vector(0, 0, 1), 1),
    Part.Circle(App.Vector(0, -27.6, 0), App.Vector(0, 0, 1), 1),
    Part.Circle(App.Vector(-7.1, -20.5, 0), App.Vector(0, 0, 1), 1),
], False)
sketch13.addConstraint([
    Sketcher.Constraint("Equal", 0, 1),
    Sketcher.Constraint("Equal", 1, 2),
    Sketcher.Constraint("Equal", 2, 3),
    Sketcher.Constraint("Symmetric", 1, 3, 3, 3, -2),
    Sketcher.Constraint("PointOnObject", 0, 3, -2),
    Sketcher.Constraint("PointOnObject", 2, 3, -2),
    Sketcher.Constraint("Diameter", 0, Q("2 mm")),
    Sketcher.Constraint("DistanceY", 1, 3, -1, 1, Q("20.5 mm")),
    Sketcher.Constraint("DistanceY", 0, 3, -1, 1, Q("13.428932 mm")),
    Sketcher.Constraint("DistanceX", -1, 1, 1, 3, Q("7.071068 mm")),
    Sketcher.Constraint("DistanceY", 2, 3, -1, 1, Q("27.571068 mm")),
])
sketch13.setExpression("Constraints[6]", "Params.sketch13_diameter")
pocket6 = doc.addObject("PartDesign::Pocket", "Pocket005")
body.addObject(pocket6)
pocket6.Profile = sketch13
pocket6.Type = "ThroughAll"

doc.recompute()
